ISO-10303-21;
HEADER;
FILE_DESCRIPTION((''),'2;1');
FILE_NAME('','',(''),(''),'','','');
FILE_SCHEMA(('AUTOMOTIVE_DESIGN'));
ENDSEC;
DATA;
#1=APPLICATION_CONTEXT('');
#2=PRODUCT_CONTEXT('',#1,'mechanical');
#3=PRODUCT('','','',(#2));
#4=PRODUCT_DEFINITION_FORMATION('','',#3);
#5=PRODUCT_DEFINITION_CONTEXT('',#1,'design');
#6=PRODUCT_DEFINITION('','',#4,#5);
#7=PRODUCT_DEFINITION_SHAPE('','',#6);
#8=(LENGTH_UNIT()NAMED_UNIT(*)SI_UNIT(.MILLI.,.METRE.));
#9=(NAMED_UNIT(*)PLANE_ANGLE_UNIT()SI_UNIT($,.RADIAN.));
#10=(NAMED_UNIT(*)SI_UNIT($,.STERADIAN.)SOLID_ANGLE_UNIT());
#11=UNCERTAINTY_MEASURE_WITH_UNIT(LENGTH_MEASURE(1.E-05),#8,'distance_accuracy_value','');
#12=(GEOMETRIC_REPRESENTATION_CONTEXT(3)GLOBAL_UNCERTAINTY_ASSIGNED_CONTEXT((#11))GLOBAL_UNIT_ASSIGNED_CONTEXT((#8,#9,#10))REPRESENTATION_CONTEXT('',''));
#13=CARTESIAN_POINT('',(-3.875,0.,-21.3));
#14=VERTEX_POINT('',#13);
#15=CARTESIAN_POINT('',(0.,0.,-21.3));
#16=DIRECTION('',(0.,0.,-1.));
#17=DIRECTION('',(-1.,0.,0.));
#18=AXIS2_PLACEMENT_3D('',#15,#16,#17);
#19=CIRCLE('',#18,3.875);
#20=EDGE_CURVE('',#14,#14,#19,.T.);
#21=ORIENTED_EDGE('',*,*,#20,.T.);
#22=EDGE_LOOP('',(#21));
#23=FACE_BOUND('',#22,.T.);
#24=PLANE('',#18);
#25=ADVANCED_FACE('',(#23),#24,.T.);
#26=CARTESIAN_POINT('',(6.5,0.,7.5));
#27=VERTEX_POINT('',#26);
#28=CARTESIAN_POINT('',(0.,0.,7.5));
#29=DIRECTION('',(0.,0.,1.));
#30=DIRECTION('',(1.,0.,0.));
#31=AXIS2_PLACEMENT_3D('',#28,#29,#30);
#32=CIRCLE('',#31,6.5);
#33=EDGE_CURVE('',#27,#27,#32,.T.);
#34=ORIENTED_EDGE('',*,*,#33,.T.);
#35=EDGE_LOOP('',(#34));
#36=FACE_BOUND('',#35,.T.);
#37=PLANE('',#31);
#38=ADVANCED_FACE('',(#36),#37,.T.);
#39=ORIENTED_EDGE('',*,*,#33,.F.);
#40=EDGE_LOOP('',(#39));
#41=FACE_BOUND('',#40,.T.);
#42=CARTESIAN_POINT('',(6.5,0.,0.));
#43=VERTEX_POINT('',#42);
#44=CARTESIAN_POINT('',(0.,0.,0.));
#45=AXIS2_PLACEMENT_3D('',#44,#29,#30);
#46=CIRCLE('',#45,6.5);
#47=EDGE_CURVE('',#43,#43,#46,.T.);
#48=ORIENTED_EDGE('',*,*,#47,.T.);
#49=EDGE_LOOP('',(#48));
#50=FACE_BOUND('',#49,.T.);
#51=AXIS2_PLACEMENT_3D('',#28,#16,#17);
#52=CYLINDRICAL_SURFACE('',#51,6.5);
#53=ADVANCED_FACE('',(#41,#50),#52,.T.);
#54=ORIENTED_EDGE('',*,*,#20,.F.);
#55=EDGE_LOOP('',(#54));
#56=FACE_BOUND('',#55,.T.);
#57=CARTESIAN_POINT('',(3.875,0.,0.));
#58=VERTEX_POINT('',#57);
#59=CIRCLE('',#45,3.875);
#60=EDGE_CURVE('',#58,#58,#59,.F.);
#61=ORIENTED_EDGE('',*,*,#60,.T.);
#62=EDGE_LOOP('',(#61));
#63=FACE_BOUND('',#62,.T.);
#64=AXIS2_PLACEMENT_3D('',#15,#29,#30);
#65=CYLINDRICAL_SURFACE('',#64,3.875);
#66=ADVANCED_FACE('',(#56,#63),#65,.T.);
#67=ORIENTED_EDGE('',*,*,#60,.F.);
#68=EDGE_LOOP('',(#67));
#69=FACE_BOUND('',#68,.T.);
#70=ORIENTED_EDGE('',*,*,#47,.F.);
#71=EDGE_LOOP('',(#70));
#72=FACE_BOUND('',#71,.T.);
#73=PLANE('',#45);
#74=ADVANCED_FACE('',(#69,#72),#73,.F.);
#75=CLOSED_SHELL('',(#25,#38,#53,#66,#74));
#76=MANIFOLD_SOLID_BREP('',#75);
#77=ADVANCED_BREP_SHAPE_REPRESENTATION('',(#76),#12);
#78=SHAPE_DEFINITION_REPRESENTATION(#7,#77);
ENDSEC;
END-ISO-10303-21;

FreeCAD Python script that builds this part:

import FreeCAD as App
import Part
import Sketcher
from FreeCAD import Vector

doc = App.newDocument("Part")
body = doc.addObject("PartDesign::Body", "Body")

# Sketch on XY plane
sketch1 = body.newObject("Sketcher::SketchObject", "Sketch")
sketch1.AttachmentSupport = (doc.getObject("XY_Plane"), [""])
sketch1.MapMode = "FlatFace"
sketch1.addGeometry(Part.Circle(Vector(0, 0, 0), Vector(0, 0, 1), 6), False)
sketch1.addConstraint([
    Sketcher.Constraint("Coincident", 0, 3, -1, 1),
    Sketcher.Constraint("Diameter", 0, 13.0),
])
pad1 = body.newObject("PartDesign::Pad", "Pad")
pad1.Profile = sketch1
pad1.Length = 7.5

# Sketch on XY plane
sketch2 = body.newObject("Sketcher::SketchObject", "Sketch001")
sketch2.AttachmentSupport = (doc.getObject("XY_Plane"), [""])
sketch2.MapMode = "FlatFace"
sketch2.addGeometry(Part.Circle(Vector(0, 0, 0), Vector(0, 0, 1), 3.9), False)
sketch2.addConstraint([
    Sketcher.Constraint("Coincident", 0, 3, -1, 1),
    Sketcher.Constraint("Diameter", 0, 7.75),
])
pad2 = body.newObject("PartDesign::Pad", "Pad001")
pad2.Profile = sketch2
pad2.Length = 21.3
pad2.Reversed = True

doc.recompute()
